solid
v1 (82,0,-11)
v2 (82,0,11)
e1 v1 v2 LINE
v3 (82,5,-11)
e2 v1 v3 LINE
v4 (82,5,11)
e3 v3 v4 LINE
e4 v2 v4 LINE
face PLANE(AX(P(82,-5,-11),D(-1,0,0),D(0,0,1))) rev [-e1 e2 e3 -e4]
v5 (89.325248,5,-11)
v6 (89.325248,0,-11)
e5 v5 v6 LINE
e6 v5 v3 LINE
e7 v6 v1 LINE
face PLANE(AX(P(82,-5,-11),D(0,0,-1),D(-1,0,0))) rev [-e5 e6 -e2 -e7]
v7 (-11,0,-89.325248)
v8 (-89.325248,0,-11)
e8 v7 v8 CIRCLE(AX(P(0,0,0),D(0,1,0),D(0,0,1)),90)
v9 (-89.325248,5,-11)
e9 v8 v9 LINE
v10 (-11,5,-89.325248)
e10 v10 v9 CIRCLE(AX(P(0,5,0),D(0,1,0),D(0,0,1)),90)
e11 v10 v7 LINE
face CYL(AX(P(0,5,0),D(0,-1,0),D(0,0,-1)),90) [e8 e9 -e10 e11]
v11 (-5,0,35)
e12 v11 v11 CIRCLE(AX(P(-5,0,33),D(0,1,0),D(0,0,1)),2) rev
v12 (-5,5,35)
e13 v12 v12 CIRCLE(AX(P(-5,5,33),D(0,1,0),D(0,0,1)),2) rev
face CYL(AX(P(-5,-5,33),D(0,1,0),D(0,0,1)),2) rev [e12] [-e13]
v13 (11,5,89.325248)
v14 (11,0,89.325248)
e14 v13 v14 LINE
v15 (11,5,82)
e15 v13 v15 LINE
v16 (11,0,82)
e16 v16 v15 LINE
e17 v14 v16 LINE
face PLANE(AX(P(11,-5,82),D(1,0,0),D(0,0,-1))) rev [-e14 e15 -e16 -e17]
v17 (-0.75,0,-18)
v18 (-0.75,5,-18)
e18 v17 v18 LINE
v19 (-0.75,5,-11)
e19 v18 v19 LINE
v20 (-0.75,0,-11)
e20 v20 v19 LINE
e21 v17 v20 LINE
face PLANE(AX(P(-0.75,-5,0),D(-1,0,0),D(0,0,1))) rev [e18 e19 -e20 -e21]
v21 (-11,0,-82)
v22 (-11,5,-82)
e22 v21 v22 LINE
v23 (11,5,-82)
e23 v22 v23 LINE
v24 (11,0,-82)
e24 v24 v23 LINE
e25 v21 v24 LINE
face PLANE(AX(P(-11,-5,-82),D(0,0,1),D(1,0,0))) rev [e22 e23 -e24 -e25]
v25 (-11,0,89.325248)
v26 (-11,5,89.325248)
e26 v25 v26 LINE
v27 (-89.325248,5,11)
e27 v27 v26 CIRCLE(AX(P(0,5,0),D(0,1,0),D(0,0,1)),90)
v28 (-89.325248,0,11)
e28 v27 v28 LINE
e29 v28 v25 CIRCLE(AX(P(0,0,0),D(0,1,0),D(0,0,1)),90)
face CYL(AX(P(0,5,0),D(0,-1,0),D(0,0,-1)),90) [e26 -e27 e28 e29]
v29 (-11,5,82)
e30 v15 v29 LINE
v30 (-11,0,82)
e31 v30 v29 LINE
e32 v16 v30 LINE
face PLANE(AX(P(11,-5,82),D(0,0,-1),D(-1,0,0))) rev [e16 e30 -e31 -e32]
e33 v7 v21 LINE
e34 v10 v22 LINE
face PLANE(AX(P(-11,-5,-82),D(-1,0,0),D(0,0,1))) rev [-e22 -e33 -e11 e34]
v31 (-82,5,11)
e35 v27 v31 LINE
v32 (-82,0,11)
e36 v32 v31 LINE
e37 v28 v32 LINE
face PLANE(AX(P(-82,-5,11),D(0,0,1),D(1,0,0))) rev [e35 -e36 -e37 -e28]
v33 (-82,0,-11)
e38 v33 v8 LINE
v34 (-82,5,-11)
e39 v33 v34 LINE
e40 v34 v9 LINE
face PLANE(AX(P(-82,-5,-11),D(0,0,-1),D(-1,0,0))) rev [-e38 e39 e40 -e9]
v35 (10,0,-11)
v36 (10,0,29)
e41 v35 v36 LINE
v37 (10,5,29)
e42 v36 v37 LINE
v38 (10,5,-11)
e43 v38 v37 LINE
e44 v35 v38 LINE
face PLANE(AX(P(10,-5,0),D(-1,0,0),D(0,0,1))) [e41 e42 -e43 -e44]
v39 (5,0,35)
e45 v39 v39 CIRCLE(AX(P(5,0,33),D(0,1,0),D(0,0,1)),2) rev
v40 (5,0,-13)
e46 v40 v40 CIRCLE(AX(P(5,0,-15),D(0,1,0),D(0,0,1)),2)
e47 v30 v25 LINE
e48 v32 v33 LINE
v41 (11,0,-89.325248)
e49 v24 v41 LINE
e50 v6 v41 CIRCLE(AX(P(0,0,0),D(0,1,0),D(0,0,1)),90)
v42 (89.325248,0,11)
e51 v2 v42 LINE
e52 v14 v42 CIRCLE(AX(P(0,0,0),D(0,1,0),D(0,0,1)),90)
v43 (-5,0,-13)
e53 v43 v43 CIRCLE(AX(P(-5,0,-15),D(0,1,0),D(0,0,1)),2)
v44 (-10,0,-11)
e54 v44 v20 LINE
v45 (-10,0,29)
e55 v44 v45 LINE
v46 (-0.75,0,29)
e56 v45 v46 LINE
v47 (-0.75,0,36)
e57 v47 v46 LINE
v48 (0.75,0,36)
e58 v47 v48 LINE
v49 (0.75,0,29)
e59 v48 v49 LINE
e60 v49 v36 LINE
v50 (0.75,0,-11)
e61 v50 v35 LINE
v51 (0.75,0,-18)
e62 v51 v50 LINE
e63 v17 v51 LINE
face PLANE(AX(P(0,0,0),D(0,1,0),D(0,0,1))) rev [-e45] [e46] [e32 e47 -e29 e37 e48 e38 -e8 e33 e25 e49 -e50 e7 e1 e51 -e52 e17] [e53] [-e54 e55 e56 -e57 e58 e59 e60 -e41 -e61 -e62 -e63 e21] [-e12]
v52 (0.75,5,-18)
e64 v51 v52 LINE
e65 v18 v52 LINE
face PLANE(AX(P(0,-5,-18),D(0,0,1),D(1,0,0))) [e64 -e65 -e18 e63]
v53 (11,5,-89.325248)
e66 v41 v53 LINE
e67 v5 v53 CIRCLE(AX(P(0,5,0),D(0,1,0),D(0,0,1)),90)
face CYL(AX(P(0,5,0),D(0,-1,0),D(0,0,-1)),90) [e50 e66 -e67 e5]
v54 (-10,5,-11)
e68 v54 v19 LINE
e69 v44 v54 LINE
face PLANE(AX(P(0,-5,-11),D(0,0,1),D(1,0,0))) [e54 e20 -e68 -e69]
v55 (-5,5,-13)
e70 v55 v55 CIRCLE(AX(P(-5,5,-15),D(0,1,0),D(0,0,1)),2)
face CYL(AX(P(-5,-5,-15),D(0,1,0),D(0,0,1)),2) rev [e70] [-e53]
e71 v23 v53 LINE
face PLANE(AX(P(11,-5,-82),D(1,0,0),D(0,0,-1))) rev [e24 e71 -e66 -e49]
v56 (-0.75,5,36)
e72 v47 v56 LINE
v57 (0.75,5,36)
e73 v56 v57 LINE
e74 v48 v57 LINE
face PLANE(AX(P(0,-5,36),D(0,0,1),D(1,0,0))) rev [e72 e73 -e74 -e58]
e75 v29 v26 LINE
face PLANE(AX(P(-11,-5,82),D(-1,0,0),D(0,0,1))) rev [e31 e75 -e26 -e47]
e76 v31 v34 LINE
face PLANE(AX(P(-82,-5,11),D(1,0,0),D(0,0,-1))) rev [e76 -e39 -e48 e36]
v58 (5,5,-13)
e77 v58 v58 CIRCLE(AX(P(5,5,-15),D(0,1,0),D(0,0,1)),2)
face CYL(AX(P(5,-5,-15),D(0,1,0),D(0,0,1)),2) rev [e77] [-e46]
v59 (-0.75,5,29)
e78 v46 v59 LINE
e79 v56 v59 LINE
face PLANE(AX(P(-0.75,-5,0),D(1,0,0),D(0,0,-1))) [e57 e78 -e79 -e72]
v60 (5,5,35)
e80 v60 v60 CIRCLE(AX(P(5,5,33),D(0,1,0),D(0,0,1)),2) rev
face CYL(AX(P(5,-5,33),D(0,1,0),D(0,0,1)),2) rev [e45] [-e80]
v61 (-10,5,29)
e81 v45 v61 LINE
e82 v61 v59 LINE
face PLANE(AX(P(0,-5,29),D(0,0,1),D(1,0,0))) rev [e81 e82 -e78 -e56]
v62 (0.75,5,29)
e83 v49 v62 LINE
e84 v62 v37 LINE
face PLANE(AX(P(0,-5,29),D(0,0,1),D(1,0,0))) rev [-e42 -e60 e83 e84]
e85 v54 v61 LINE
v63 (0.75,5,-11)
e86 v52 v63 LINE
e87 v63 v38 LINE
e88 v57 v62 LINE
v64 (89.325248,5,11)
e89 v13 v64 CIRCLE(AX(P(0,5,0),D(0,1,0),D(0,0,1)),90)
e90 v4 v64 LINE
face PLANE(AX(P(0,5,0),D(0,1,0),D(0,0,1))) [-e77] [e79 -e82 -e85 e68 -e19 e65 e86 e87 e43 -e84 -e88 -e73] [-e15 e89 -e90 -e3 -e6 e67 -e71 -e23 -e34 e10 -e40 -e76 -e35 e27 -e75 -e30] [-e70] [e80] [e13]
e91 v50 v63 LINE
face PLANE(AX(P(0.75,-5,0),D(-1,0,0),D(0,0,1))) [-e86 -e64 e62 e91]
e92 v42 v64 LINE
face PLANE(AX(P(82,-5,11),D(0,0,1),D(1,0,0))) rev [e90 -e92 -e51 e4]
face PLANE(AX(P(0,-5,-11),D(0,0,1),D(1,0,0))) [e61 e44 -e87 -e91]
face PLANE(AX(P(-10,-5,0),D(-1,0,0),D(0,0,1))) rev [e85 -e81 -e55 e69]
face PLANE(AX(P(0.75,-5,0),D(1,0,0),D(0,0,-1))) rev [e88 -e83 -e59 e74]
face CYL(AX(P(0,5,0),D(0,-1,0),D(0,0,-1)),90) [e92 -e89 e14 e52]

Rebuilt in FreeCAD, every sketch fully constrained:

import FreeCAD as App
import Part
import Sketcher

V = App.Vector
Q = App.Units.Quantity

doc = App.newDocument("Part")
body = doc.addObject("PartDesign::Body", "Body")

# Sketch on XZ plane
sketch1 = doc.addObject("Sketcher::SketchObject", "Sketch")
body.addObject(sketch1)
sketch1.AttachmentSupport = (doc.XZ_Plane, [""])
sketch1.MapMode = "FlatFace"
sketch1.addGeometry(Part.Circle(V(0, 0, 0), V(0, 0, 1), 90), False)
sketch1.addConstraint([
    Sketcher.Constraint("Coincident", 0, 3, -1, 1),
    Sketcher.Constraint("Diameter", 0, Q("180 mm")),
])
pad1 = doc.addObject("PartDesign::Pad", "Pad")
body.addObject(pad1)
pad1.Profile = sketch1
pad1.Length = 5
pad1.Reversed = True

# Sketch on XZ plane
sketch2 = doc.addObject("Sketcher::SketchObject", "Sketch001")
body.addObject(sketch2)
sketch2.AttachmentSupport = (doc.XZ_Plane, [""])
sketch2.MapMode = "FlatFace"
sketch2.AttachmentOffset = App.Placement(V(0, 0, -5), App.Rotation())
sketch2.addGeometry([
    Part.LineSegment(V(-11, -107.485581, 0), V(-11, -82, 0)),
    Part.LineSegment(V(-11, -82, 0), V(11, -82, 0)),
    Part.LineSegment(V(11, -82, 0), V(11, -107.485581, 0)),
    Part.LineSegment(V(11, -107.485581, 0), V(-11, -107.485581, 0)),
], False)
sketch2.addConstraint([
    Sketcher.Constraint("Coincident", 0, 2, 1, 1),
    Sketcher.Constraint("Coincident", 1, 2, 2, 1),
    Sketcher.Constraint("Coincident", 2, 2, 3, 1),
    Sketcher.Constraint("Coincident", 3, 2, 0, 1),
    Sketcher.Constraint("Vertical", 0),
    Sketcher.Constraint("Horizontal", 1),
    Sketcher.Constraint("Vertical", 2),
    Sketcher.Constraint("Horizontal", 3),
    Sketcher.Constraint("DistanceX", 1, 1, 1, 2, Q("22 mm")),
    Sketcher.Constraint("DistanceX", 0, 2, -1, 1, Q("11 mm")),
    Sketcher.Constraint("DistanceY", 0, 2, -1, 1, Q("82 mm")),
    Sketcher.Constraint("DistanceY", 0, 1, 0, 2, Q("25.485581 mm")),
])
pocket1 = doc.addObject("PartDesign::Pocket", "Pocket")
body.addObject(pocket1)
pocket1.Profile = sketch2
pocket1.Length = 10
pocket1.Reversed = True
doc.recompute()

polarpattern = doc.addObject("PartDesign::PolarPattern", "PolarPattern")
body.addObject(polarpattern)
polarpattern.Originals = [pocket1]
polarpattern.Axis = (doc.Y_Axis, [""])
polarpattern.Angle = 360
polarpattern.Occurrences = 4
body.Tip = polarpattern

# Sketch on XZ plane
sketch3 = doc.addObject("Sketcher::SketchObject", "Sketch002")
body.addObject(sketch3)
sketch3.AttachmentSupport = (doc.XZ_Plane, [""])
sketch3.MapMode = "FlatFace"
sketch3.AttachmentOffset = App.Placement(V(0, 0, -5), App.Rotation())
sketch3.addGeometry([
    Part.LineSegment(V(-10, 29, 0), V(-0.75, 29, 0)),  # 0
    Part.LineSegment(V(-0.75, 29, 0), V(-0.75, 36, 0)),  # 1
    Part.LineSegment(V(-0.75, 36, 0), V(0.75, 36, 0)),  # 2
    Part.LineSegment(V(0.75, 36, 0), V(0.75, 29, 0)),  # 3
    Part.LineSegment(V(0.75, 29, 0), V(10, 29, 0)),  # 4
    Part.LineSegment(V(10, 29, 0), V(10, -11, 0)),  # 5
    Part.LineSegment(V(10, -11, 0), V(0.75, -11, 0)),  # 6
    Part.LineSegment(V(0.75, -11, 0), V(0.75, -18, 0)),  # 7
    Part.LineSegment(V(0.75, -18, 0), V(-0.75, -18, 0)),  # 8
    Part.LineSegment(V(-0.75, -18, 0), V(-0.75, -11, 0)),  # 9
    Part.LineSegment(V(-0.75, -11, 0), V(-10, -11, 0)),  # 10
    Part.LineSegment(V(-10, -11, 0), V(-10, 29, 0)),  # 11
    Part.Circle(V(5, 33, 0), V(0, 0, 1), 2),  # 12
    Part.Circle(V(-5, 33, 0), V(0, 0, 1), 2),  # 13
    Part.Circle(V(-5, -15, 0), V(0, 0, 1), 2),  # 14
    Part.Circle(V(5, -15, 0), V(0, 0, 1), 2),  # 15
], False)
sketch3.addConstraint([
    Sketcher.Constraint("Coincident", 0, 2, 1, 1),
    Sketcher.Constraint("Coincident", 1, 2, 2, 1),
    Sketcher.Constraint("Coincident", 2, 2, 3, 1),
    Sketcher.Constraint("Coincident", 3, 2, 4, 1),
    Sketcher.Constraint("Coincident", 4, 2, 5, 1),
    Sketcher.Constraint("Coincident", 5, 2, 6, 1),
    Sketcher.Constraint("Coincident", 6, 2, 7, 1),
    Sketcher.Constraint("Coincident", 7, 2, 8, 1),
    Sketcher.Constraint("Coincident", 8, 2, 9, 1),
    Sketcher.Constraint("Coincident", 9, 2, 10, 1),
    Sketcher.Constraint("Coincident", 10, 2, 11, 1),
    Sketcher.Constraint("Coincident", 11, 2, 0, 1),
    Sketcher.Constraint("Horizontal", 0),
    Sketcher.Constraint("Vertical", 1),
    Sketcher.Constraint("Horizontal", 2),
    Sketcher.Constraint("Vertical", 3),
    Sketcher.Constraint("Horizontal", 4),
    Sketcher.Constraint("Vertical", 5),
    Sketcher.Constraint("Horizontal", 6),
    Sketcher.Constraint("Vertical", 7),
    Sketcher.Constraint("Horizontal", 8),
    Sketcher.Constraint("Vertical", 9),
    Sketcher.Constraint("Horizontal", 10),
    Sketcher.Constraint("Vertical", 11),
    Sketcher.Constraint("Equal", 12, 13),
    Sketcher.Constraint("Equal", 13, 14),
    Sketcher.Constraint("Equal", 14, 15),
    Sketcher.Constraint("Symmetric", 12, 3, 13, 3, -2),
    Sketcher.Constraint("Symmetric", 14, 3, 15, 3, -2),
    Sketcher.Constraint("Symmetric", 0, 2, 3, 2, -2),
    Sketcher.Constraint("Symmetric", 6, 2, 9, 2, -2),
    Sketcher.Constraint("Vertical", 13, 3, 14, 3),
    Sketcher.Constraint("Vertical", 3, 2, 6, 2),
    Sketcher.Constraint("Equal", 0, 4),
    Sketcher.Constraint("Equal", 3, 7),
    Sketcher.Constraint("Diameter", 12, Q("4 mm")),
    Sketcher.Constraint("DistanceY", 1, 1, 1, 2, Q("7 mm")),
    Sketcher.Constraint("DistanceY", 5, 2, 5, 1, Q("40 mm")),
    Sketcher.Constraint("DistanceX", 2, 1, 2, 2, Q("1.5 mm")),
    Sketcher.Constraint("DistanceX", -1, 1, 12, 3, Q("5 mm")),
    Sketcher.Constraint("DistanceY", -1, 1, 12, 3, Q("33 mm")),
    Sketcher.Constraint("DistanceY", 14, 3, -1, 1, Q("15 mm")),
    Sketcher.Constraint("DistanceY", -1, 1, 0, 2, Q("29 mm")),
    Sketcher.Constraint("DistanceX", -1, 1, 4, 2, Q("10 mm")),
])
pocket2 = doc.addObject("PartDesign::Pocket", "Pocket001")
body.addObject(pocket2)
pocket2.Profile = sketch3
pocket2.Length = 10
pocket2.Reversed = True

doc.recompute()
